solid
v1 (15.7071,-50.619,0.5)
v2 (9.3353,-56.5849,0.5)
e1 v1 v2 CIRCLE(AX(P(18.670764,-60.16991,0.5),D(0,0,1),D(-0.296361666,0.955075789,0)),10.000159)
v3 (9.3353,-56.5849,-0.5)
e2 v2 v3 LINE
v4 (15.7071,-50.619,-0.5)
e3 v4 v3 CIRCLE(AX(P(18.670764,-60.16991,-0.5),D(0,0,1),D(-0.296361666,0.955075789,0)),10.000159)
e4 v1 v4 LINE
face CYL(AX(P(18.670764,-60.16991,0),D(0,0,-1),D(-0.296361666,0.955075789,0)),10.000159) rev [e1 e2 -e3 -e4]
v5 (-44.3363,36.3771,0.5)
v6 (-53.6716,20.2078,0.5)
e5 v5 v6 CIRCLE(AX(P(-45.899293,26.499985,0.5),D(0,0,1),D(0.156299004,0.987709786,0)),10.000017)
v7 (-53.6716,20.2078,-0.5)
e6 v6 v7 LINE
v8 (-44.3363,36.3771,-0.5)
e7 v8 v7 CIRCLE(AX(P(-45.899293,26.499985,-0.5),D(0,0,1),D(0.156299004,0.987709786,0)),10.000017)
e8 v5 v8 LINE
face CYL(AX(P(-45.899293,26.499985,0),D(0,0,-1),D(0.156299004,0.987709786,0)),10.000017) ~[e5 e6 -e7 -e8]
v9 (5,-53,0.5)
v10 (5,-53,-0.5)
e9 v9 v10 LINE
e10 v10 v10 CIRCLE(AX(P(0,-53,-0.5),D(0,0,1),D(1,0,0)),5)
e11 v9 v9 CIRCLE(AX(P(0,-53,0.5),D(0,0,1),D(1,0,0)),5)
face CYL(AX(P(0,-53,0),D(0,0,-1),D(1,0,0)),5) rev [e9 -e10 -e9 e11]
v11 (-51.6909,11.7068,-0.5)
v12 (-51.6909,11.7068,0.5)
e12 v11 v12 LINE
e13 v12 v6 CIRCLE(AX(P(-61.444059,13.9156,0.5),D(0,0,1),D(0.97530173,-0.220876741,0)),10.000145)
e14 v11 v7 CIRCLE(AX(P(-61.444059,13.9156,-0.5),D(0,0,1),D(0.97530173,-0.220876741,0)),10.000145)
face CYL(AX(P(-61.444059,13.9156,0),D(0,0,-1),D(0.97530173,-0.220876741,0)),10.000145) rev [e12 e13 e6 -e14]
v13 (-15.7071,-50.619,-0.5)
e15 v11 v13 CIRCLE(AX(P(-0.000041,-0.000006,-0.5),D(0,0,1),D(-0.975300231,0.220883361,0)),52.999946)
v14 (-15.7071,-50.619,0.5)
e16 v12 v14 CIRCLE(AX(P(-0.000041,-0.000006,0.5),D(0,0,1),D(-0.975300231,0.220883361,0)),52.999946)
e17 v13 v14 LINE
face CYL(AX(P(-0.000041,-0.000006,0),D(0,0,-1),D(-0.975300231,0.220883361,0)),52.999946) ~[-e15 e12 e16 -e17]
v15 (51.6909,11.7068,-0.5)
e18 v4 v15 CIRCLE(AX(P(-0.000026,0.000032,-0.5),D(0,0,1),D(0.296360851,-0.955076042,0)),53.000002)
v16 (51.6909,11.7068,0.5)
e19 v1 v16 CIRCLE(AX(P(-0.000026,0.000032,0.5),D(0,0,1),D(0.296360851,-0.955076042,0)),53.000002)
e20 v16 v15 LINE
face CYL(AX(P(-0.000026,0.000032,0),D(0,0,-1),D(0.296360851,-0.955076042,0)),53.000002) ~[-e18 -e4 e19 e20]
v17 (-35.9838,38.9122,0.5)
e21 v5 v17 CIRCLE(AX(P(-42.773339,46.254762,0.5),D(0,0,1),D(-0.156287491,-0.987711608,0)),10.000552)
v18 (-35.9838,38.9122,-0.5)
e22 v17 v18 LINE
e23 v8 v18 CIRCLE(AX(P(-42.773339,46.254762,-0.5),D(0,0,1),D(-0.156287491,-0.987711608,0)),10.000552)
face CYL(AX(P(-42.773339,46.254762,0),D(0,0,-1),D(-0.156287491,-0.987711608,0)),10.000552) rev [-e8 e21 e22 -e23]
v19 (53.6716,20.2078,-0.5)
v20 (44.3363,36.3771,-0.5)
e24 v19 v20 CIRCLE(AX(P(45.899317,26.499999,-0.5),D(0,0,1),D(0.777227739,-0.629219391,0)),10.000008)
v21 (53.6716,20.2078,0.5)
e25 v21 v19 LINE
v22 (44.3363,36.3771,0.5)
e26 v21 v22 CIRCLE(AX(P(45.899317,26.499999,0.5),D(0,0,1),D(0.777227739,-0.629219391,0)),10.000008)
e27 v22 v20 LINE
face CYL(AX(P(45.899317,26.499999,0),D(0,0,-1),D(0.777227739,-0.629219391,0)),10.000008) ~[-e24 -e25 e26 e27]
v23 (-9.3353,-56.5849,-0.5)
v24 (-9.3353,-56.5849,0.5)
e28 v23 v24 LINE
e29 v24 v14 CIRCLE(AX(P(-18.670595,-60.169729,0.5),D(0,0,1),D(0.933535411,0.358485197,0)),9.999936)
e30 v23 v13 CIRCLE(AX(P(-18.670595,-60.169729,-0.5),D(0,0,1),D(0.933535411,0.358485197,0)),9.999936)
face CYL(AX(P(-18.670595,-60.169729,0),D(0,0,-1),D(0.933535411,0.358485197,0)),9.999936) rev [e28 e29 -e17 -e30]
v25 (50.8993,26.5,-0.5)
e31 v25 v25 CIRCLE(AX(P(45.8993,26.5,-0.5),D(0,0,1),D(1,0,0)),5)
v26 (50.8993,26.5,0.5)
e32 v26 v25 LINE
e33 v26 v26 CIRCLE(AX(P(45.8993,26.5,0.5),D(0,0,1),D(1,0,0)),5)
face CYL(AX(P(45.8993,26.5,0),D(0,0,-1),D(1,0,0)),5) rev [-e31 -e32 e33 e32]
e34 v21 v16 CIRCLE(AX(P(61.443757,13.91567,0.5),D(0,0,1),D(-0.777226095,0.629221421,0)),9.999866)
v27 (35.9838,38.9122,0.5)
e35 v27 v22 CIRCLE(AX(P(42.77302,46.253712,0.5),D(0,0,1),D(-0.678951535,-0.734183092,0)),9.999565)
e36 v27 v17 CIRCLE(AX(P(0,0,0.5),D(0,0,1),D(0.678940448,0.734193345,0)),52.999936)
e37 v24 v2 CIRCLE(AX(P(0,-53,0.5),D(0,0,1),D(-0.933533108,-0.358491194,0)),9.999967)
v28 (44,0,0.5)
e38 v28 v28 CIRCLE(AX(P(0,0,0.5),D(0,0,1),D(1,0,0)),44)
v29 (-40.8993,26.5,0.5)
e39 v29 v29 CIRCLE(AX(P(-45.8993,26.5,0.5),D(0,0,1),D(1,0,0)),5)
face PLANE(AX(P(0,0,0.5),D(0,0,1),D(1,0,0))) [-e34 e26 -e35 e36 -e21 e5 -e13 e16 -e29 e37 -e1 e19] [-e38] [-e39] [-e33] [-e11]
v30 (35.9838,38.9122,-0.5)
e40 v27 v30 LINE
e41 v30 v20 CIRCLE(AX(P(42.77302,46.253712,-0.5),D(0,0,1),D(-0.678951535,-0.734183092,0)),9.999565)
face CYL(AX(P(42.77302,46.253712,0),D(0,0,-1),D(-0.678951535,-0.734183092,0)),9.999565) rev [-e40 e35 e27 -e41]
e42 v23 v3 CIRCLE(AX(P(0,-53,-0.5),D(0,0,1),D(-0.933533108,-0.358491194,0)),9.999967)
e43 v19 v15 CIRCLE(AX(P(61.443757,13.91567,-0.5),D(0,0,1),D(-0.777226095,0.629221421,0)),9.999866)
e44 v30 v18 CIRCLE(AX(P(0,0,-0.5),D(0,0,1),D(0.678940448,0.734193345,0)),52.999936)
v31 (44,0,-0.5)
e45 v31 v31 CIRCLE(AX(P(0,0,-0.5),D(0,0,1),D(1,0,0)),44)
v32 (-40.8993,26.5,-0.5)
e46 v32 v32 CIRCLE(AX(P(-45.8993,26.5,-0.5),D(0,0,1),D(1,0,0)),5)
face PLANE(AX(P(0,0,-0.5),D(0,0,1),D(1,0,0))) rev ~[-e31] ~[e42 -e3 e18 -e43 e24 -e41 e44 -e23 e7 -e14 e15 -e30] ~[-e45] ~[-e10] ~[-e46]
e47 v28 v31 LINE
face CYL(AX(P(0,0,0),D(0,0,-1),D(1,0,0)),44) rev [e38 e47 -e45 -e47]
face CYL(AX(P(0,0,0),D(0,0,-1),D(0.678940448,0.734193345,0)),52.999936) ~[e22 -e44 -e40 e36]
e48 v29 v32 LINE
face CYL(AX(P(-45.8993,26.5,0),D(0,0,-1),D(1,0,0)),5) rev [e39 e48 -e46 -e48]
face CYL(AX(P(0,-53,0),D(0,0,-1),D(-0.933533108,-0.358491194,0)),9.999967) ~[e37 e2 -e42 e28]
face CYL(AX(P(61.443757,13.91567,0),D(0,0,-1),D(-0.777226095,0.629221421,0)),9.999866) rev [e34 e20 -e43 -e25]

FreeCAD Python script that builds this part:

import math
import FreeCAD as App
import Part
import Sketcher
from FreeCAD import Vector

doc = App.newDocument("Part")
body = doc.addObject("PartDesign::Body", "Body")

# Sketch on XY plane
sketch1 = body.newObject("Sketcher::SketchObject", "Sketch")
sketch1.AttachmentSupport = (doc.getObject("XY_Plane"), [""])
sketch1.MapMode = "FlatFace"
sketch1.addGeometry(Part.ArcOfCircle(Part.Circle(Vector(-61, 14, 0), Vector(0, 0, 1), 10), math.radians(-13), math.radians(39)), False)
sketch1.addGeometry(Part.ArcOfCircle(Part.Circle(Vector(0, 0, 0), Vector(0, 0, 1), 53), math.radians(167), math.radians(253)), False)
sketch1.addGeometry(Part.ArcOfCircle(Part.Circle(Vector(-19, -60, 0), Vector(0, 0, 1), 10), math.radians(21), math.radians(73)), False)
sketch1.addGeometry(Part.ArcOfCircle(Part.Circle(Vector(0, -53, 0), Vector(0, 0, 1), 10), math.radians(-159), math.radians(-21)), False)
sketch1.addGeometry(Part.ArcOfCircle(Part.Circle(Vector(19, -60, 0), Vector(0, 0, 1), 10), math.radians(107), math.radians(159)), False)
sketch1.addGeometry(Part.ArcOfCircle(Part.Circle(Vector(0, 0, 0), Vector(0, 0, 1), 53), math.radians(-73), math.radians(13)), False)
sketch1.addGeometry(Part.ArcOfCircle(Part.Circle(Vector(61, 14, 0), Vector(0, 0, 1), 10), math.radians(141), math.radians(193)), False)
sketch1.addGeometry(Part.ArcOfCircle(Part.Circle(Vector(46, 26, 0), Vector(0, 0, 1), 10), math.radians(-39), math.radians(99)), False)
sketch1.addGeometry(Part.ArcOfCircle(Part.Circle(Vector(43, 46, 0), Vector(0, 0, 1), 10), math.radians(-133), math.radians(-81)), False)
sketch1.addGeometry(Part.ArcOfCircle(Part.Circle(Vector(0, 0, 0), Vector(0, 0, 1), 53), math.radians(47), math.radians(133)), False)
sketch1.addGeometry(Part.ArcOfCircle(Part.Circle(Vector(-43, 46, 0), Vector(0, 0, 1), 10), math.radians(-99), math.radians(-47)), False)
sketch1.addGeometry(Part.ArcOfCircle(Part.Circle(Vector(-46, 26, 0), Vector(0, 0, 1), 10), math.radians(81), math.radians(219)), False)
sketch1.addGeometry(Part.Circle(Vector(0, -53, 0), Vector(0, 0, 1), 5), False)
sketch1.addGeometry(Part.Circle(Vector(0, 0, 0), Vector(0, 0, 1), 44), False)
sketch1.addGeometry(Part.Circle(Vector(-46, 26, 0), Vector(0, 0, 1), 5), False)
sketch1.addGeometry(Part.Circle(Vector(46, 26, 0), Vector(0, 0, 1), 5), False)
sketch1.addConstraint(Sketcher.Constraint("Tangent", 0, 1, 1, 1))
sketch1.addConstraint(Sketcher.Constraint("Tangent", 1, 2, 2, 2))
sketch1.addConstraint(Sketcher.Constraint("Tangent", 2, 1, 3, 1))
sketch1.addConstraint(Sketcher.Constraint("Tangent", 3, 2, 4, 2))
sketch1.addConstraint(Sketcher.Constraint("Tangent", 4, 1, 5, 1))
sketch1.addConstraint(Sketcher.Constraint("Tangent", 5, 2, 6, 2))
sketch1.addConstraint(Sketcher.Constraint("Tangent", 6, 1, 7, 1))
sketch1.addConstraint(Sketcher.Constraint("Tangent", 7, 2, 8, 2))
sketch1.addConstraint(Sketcher.Constraint("Tangent", 8, 1, 9, 1))
sketch1.addConstraint(Sketcher.Constraint("Tangent", 9, 2, 10, 2))
sketch1.addConstraint(Sketcher.Constraint("Tangent", 10, 1, 11, 1))
sketch1.addConstraint(Sketcher.Constraint("Tangent", 11, 2, 0, 2))
sketch1.addConstraint(Sketcher.Constraint("Coincident", 1, 3, -1, 1))
sketch1.addConstraint(Sketcher.Constraint("Coincident", 5, 3, -1, 1))
sketch1.addConstraint(Sketcher.Constraint("Coincident", 9, 3, -1, 1))
sketch1.addConstraint(Sketcher.Constraint("Coincident", 13, 3, -1, 1))
sketch1.addConstraint(Sketcher.Constraint("Coincident", 12, 3, 3, 3))
sketch1.addConstraint(Sketcher.Constraint("Coincident", 14, 3, 11, 3))
sketch1.addConstraint(Sketcher.Constraint("Coincident", 15, 3, 7, 3))
sketch1.addConstraint(Sketcher.Constraint("Equal", 0, 2))
sketch1.addConstraint(Sketcher.Constraint("Equal", 2, 3))
sketch1.addConstraint(Sketcher.Constraint("Equal", 3, 4))
sketch1.addConstraint(Sketcher.Constraint("Equal", 1, 5))
sketch1.addConstraint(Sketcher.Constraint("Equal", 4, 6))
sketch1.addConstraint(Sketcher.Constraint("Equal", 6, 7))
sketch1.addConstraint(Sketcher.Constraint("Equal", 7, 8))
sketch1.addConstraint(Sketcher.Constraint("Equal", 5, 9))
sketch1.addConstraint(Sketcher.Constraint("Equal", 8, 10))
sketch1.addConstraint(Sketcher.Constraint("Equal", 10, 11))
sketch1.addConstraint(Sketcher.Constraint("Equal", 12, 14))
sketch1.addConstraint(Sketcher.Constraint("Equal", 14, 15))
sketch1.addConstraint(Sketcher.Constraint("Symmetric", 7, 3, 11, 3, -2))
sketch1.addConstraint(Sketcher.Constraint("PointOnObject", 3, 3, -2))
sketch1.addConstraint(Sketcher.Constraint("Diameter", 12, 10.0))
sketch1.addConstraint(Sketcher.Constraint("Diameter", 13, 88.0))
sketch1.addConstraint(Sketcher.Constraint("Radius", 0, 10.0))
sketch1.addConstraint(Sketcher.Constraint("Radius", 1, 53.0))
sketch1.addConstraint(Sketcher.Constraint("DistanceY", 3, 3, -1, 1, 53.0))
sketch1.addConstraint(Sketcher.Constraint("DistanceY", -1, 1, 7, 3, 26.5))
sketch1.addConstraint(Sketcher.Constraint("DistanceX", 0, 3, -1, 1, 61.444))
pad1 = body.newObject("PartDesign::Pad", "Pad")
pad1.Profile = sketch1
pad1.Length = 1
pad1.Midplane = True

doc.recompute()
